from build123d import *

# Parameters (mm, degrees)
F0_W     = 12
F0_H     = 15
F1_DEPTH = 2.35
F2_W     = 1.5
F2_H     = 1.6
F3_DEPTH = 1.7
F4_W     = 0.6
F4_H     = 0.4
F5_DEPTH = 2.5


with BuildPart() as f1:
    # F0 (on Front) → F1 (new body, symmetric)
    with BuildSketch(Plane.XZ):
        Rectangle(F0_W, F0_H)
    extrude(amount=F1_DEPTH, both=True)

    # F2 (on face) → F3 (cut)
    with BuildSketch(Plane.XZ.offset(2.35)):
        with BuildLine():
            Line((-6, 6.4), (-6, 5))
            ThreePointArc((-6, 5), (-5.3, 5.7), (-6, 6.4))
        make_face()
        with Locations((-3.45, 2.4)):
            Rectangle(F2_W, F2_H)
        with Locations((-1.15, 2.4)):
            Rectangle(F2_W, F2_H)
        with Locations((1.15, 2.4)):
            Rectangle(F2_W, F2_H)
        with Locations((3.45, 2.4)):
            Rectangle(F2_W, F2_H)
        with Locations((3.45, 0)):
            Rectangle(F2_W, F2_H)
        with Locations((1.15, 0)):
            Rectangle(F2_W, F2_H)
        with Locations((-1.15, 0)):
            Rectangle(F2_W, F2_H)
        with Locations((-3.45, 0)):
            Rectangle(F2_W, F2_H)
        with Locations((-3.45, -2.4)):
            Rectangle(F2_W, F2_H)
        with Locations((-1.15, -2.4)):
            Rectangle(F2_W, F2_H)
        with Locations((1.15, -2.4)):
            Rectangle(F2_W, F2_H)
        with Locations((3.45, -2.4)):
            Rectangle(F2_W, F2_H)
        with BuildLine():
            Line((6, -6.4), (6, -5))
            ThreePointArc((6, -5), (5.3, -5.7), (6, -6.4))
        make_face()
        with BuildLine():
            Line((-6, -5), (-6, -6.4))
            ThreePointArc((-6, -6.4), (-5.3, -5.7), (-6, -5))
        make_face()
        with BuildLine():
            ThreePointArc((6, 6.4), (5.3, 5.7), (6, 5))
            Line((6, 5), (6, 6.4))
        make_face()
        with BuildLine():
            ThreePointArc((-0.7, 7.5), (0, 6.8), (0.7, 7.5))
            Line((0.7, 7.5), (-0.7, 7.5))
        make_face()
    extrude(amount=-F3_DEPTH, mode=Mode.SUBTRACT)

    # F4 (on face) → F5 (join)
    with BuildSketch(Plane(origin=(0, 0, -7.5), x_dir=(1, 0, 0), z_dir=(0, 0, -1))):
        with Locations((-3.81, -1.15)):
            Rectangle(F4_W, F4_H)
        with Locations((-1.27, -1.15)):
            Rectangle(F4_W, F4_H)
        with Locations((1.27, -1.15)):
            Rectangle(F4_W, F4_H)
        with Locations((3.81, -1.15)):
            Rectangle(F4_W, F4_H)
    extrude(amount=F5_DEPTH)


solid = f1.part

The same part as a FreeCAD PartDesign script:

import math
import FreeCAD as App
import Part
import Sketcher
from FreeCAD import Vector

doc = App.newDocument("Part")
body = doc.addObject("PartDesign::Body", "Body")

sketch1 = body.newObject("Sketcher::SketchObject", "Sketch")
sketch1.AttachmentSupport = (doc.getObject("XZ_Plane"), [""])
sketch1.MapMode = "FlatFace"
sketch1.addGeometry([
    Part.LineSegment(Vector(-6, 8, 0), Vector(-6, -8, 0)),
    Part.LineSegment(Vector(-6, -8, 0), Vector(6, -8, 0)),
    Part.LineSegment(Vector(6, -8, 0), Vector(6, 8, 0)),
    Part.LineSegment(Vector(6, 8, 0), Vector(-6, 8, 0)),
], False)
sketch1.addConstraint([
    Sketcher.Constraint("Coincident", 0, 2, 1, 1),
    Sketcher.Constraint("Coincident", 1, 2, 2, 1),
    Sketcher.Constraint("Coincident", 2, 2, 3, 1),
    Sketcher.Constraint("Coincident", 3, 2, 0, 1),
    Sketcher.Constraint("Vertical", 0),
    Sketcher.Constraint("Horizontal", 1),
    Sketcher.Constraint("Vertical", 2),
    Sketcher.Constraint("Horizontal", 3),
    Sketcher.Constraint("Symmetric", 0, 2, 2, 2, -1, 1),
    Sketcher.Constraint("DistanceX", 1, 1, 1, 2, 12.0),
    Sketcher.Constraint("DistanceY", 0, 2, 0, 1, 15.0),
])
pad1 = body.newObject("PartDesign::Pad", "Pad")
pad1.Profile = sketch1
pad1.Length = 4.7
pad1.Midplane = True

sketch2 = body.newObject("Sketcher::SketchObject", "Sketch001")
sketch2.AttachmentSupport = (doc.getObject("XZ_Plane"), [""])
sketch2.MapMode = "FlatFace"
sketch2.AttachmentOffset = App.Placement(Vector(0, 0, 2.35), App.Rotation())
sketch2.addGeometry([
    Part.LineSegment(Vector(-6, 6.4, 0), Vector(-6, 5, 0)),
    Part.ArcOfCircle(Part.Circle(Vector(-6, 5.7, 0), Vector(0, 0, 1), 0.7), math.radians(-90), math.radians(90)),
    Part.LineSegment(Vector(-4.2, 3.2, 0), Vector(-4.2, 1.6, 0)),
    Part.LineSegment(Vector(-4.2, 1.6, 0), Vector(-2.7, 1.6, 0)),
    Part.LineSegment(Vector(-2.7, 1.6, 0), Vector(-2.7, 3.2, 0)),
    Part.LineSegment(Vector(-2.7, 3.2, 0), Vector(-4.2, 3.2, 0)),
    Part.LineSegment(Vector(-1.9, 3.2, 0), Vector(-1.9, 1.6, 0)),
    Part.LineSegment(Vector(-1.9, 1.6, 0), Vector(-0.4, 1.6, 0)),
    Part.LineSegment(Vector(-0.4, 1.6, 0), Vector(-0.4, 3.2, 0)),
    Part.LineSegment(Vector(-0.4, 3.2, 0), Vector(-1.9, 3.2, 0)),
    Part.LineSegment(Vector(0.4, 3.2, 0), Vector(0.4, 1.6, 0)),
    Part.LineSegment(Vector(0.4, 1.6, 0), Vector(1.9, 1.6, 0)),
    Part.LineSegment(Vector(1.9, 1.6, 0), Vector(1.9, 3.2, 0)),
    Part.LineSegment(Vector(1.9, 3.2, 0), Vector(0.4, 3.2, 0)),
    Part.LineSegment(Vector(2.7, 3.2, 0), Vector(2.7, 1.6, 0)),
    Part.LineSegment(Vector(2.7, 1.6, 0), Vector(4.2, 1.6, 0)),
    Part.LineSegment(Vector(4.2, 1.6, 0), Vector(4.2, 3.2, 0)),
    Part.LineSegment(Vector(4.2, 3.2, 0), Vector(2.7, 3.2, 0)),
    Part.LineSegment(Vector(2.7, 0.8, 0), Vector(2.7, -0.8, 0)),
    Part.LineSegment(Vector(2.7, -0.8, 0), Vector(4.2, -0.8, 0)),
    Part.LineSegment(Vector(4.2, -0.8, 0), Vector(4.2, 0.8, 0)),
    Part.LineSegment(Vector(4.2, 0.8, 0), Vector(2.7, 0.8, 0)),
    Part.LineSegment(Vector(0.4, 0.8, 0), Vector(0.4, -0.8, 0)),
    Part.LineSegment(Vector(0.4, -0.8, 0), Vector(1.9, -0.8, 0)),
    Part.LineSegment(Vector(1.9, -0.8, 0), Vector(1.9, 0.8, 0)),
    Part.LineSegment(Vector(1.9, 0.8, 0), Vector(0.4, 0.8, 0)),
    Part.LineSegment(Vector(-1.9, 0.8, 0), Vector(-1.9, -0.8, 0)),
    Part.LineSegment(Vector(-1.9, -0.8, 0), Vector(-0.4, -0.8, 0)),
    Part.LineSegment(Vector(-0.4, -0.8, 0), Vector(-0.4, 0.8, 0)),
    Part.LineSegment(Vector(-0.4, 0.8, 0), Vector(-1.9, 0.8, 0)),
    Part.LineSegment(Vector(-4.2, 0.8, 0), Vector(-4.2, -0.8, 0)),
    Part.LineSegment(Vector(-4.2, -0.8, 0), Vector(-2.7, -0.8, 0)),
    Part.LineSegment(Vector(-2.7, -0.8, 0), Vector(-2.7, 0.8, 0)),
    Part.LineSegment(Vector(-2.7, 0.8, 0), Vector(-4.2, 0.8, 0)),
    Part.LineSegment(Vector(-4.2, -1.6, 0), Vector(-4.2, -3.2, 0)),
    Part.LineSegment(Vector(-4.2, -3.2, 0), Vector(-2.7, -3.2, 0)),
    Part.LineSegment(Vector(-2.7, -3.2, 0), Vector(-2.7, -1.6, 0)),
    Part.LineSegment(Vector(-2.7, -1.6, 0), Vector(-4.2, -1.6, 0)),
    Part.LineSegment(Vector(-1.9, -1.6, 0), Vector(-1.9, -3.2, 0)),
    Part.LineSegment(Vector(-1.9, -3.2, 0), Vector(-0.4, -3.2, 0)),
    Part.LineSegment(Vector(-0.4, -3.2, 0), Vector(-0.4, -1.6, 0)),
    Part.LineSegment(Vector(-0.4, -1.6, 0), Vector(-1.9, -1.6, 0)),
    Part.LineSegment(Vector(0.4, -1.6, 0), Vector(0.4, -3.2, 0)),
    Part.LineSegment(Vector(0.4, -3.2, 0), Vector(1.9, -3.2, 0)),
    Part.LineSegment(Vector(1.9, -3.2, 0), Vector(1.9, -1.6, 0)),
    Part.LineSegment(Vector(1.9, -1.6, 0), Vector(0.4, -1.6, 0)),
    Part.LineSegment(Vector(2.7, -1.6, 0), Vector(2.7, -3.2, 0)),
    Part.LineSegment(Vector(2.7, -3.2, 0), Vector(4.2, -3.2, 0)),
    Part.LineSegment(Vector(4.2, -3.2, 0), Vector(4.2, -1.6, 0)),
    Part.LineSegment(Vector(4.2, -1.6, 0), Vector(2.7, -1.6, 0)),
    Part.LineSegment(Vector(6, -6.4, 0), Vector(6, -5, 0)),
    Part.ArcOfCircle(Part.Circle(Vector(6, -5.7, 0), Vector(0, 0, 1), 0.7), math.radians(90), math.radians(270)),
    Part.LineSegment(Vector(-6, -5, 0), Vector(-6, -6.4, 0)),
    Part.ArcOfCircle(Part.Circle(Vector(-6, -5.7, 0), Vector(0, 0, 1), 0.7), math.radians(-90), math.radians(90)),
    Part.ArcOfCircle(Part.Circle(Vector(6, 5.7, 0), Vector(0, 0, 1), 0.7), math.radians(90), math.radians(270)),
    Part.LineSegment(Vector(6, 5, 0), Vector(6, 6.4, 0)),
    Part.ArcOfCircle(Part.Circle(Vector(0, 7.5, 0), Vector(0, 0, 1), 0.7), math.radians(180), math.radians(360)),
    Part.LineSegment(Vector(0.7, 7.5, 0), Vector(-0.7, 7.5, 0)),
], False)
sketch2.addConstraint([
    Sketcher.Constraint("Coincident", 0, 1, 1, 2),
    Sketcher.Constraint("Coincident", 1, 1, 0, 2),
    Sketcher.Constraint("Coincident", 2, 2, 3, 1),
    Sketcher.Constraint("Coincident", 3, 2, 4, 1),
    Sketcher.Constraint("Coincident", 4, 2, 5, 1),
    Sketcher.Constraint("Coincident", 5, 2, 2, 1),
    Sketcher.Constraint("Coincident", 6, 2, 7, 1),
    Sketcher.Constraint("Coincident", 7, 2, 8, 1),
    Sketcher.Constraint("Coincident", 8, 2, 9, 1),
    Sketcher.Constraint("Coincident", 9, 2, 6, 1),
    Sketcher.Constraint("Coincident", 10, 2, 11, 1),
    Sketcher.Constraint("Coincident", 11, 2, 12, 1),
    Sketcher.Constraint("Coincident", 12, 2, 13, 1),
    Sketcher.Constraint("Coincident", 13, 2, 10, 1),
    Sketcher.Constraint("Coincident", 14, 2, 15, 1),
    Sketcher.Constraint("Coincident", 15, 2, 16, 1),
    Sketcher.Constraint("Coincident", 16, 2, 17, 1),
    Sketcher.Constraint("Coincident", 17, 2, 14, 1),
    Sketcher.Constraint("Coincident", 18, 2, 19, 1),
    Sketcher.Constraint("Coincident", 19, 2, 20, 1),
    Sketcher.Constraint("Coincident", 20, 2, 21, 1),
    Sketcher.Constraint("Coincident", 21, 2, 18, 1),
    Sketcher.Constraint("Coincident", 22, 2, 23, 1),
    Sketcher.Constraint("Coincident", 23, 2, 24, 1),
    Sketcher.Constraint("Coincident", 24, 2, 25, 1),
    Sketcher.Constraint("Coincident", 25, 2, 22, 1),
    Sketcher.Constraint("Coincident", 26, 2, 27, 1),
    Sketcher.Constraint("Coincident", 27, 2, 28, 1),
    Sketcher.Constraint("Coincident", 28, 2, 29, 1),
    Sketcher.Constraint("Coincident", 29, 2, 26, 1),
    Sketcher.Constraint("Coincident", 30, 2, 31, 1),
    Sketcher.Constraint("Coincident", 31, 2, 32, 1),
    Sketcher.Constraint("Coincident", 32, 2, 33, 1),
    Sketcher.Constraint("Coincident", 33, 2, 30, 1),
    Sketcher.Constraint("Coincident", 34, 2, 35, 1),
    Sketcher.Constraint("Coincident", 35, 2, 36, 1),
    Sketcher.Constraint("Coincident", 36, 2, 37, 1),
    Sketcher.Constraint("Coincident", 37, 2, 34, 1),
    Sketcher.Constraint("Coincident", 38, 2, 39, 1),
    Sketcher.Constraint("Coincident", 39, 2, 40, 1),
    Sketcher.Constraint("Coincident", 40, 2, 41, 1),
    Sketcher.Constraint("Coincident", 41, 2, 38, 1),
    Sketcher.Constraint("Coincident", 42, 2, 43, 1),
    Sketcher.Constraint("Coincident", 43, 2, 44, 1),
    Sketcher.Constraint("Coincident", 44, 2, 45, 1),
    Sketcher.Constraint("Coincident", 45, 2, 42, 1),
    Sketcher.Constraint("Coincident", 46, 2, 47, 1),
    Sketcher.Constraint("Coincident", 47, 2, 48, 1),
    Sketcher.Constraint("Coincident", 48, 2, 49, 1),
    Sketcher.Constraint("Coincident", 49, 2, 46, 1),
    Sketcher.Constraint("Coincident", 50, 1, 51, 2),
    Sketcher.Constraint("Coincident", 51, 1, 50, 2),
    Sketcher.Constraint("Coincident", 52, 1, 53, 2),
    Sketcher.Constraint("Coincident", 53, 1, 52, 2),
    Sketcher.Constraint("Coincident", 54, 1, 55, 2),
    Sketcher.Constraint("Coincident", 55, 1, 54, 2),
    Sketcher.Constraint("Coincident", 56, 1, 57, 2),
    Sketcher.Constraint("Coincident", 57, 1, 56, 2),
    Sketcher.Constraint("Vertical", 0),
    Sketcher.Constraint("Vertical", 2),
    Sketcher.Constraint("Horizontal", 3),
    Sketcher.Constraint("Vertical", 4),
    Sketcher.Constraint("Horizontal", 5),
    Sketcher.Constraint("Vertical", 6),
    Sketcher.Constraint("Horizontal", 7),
    Sketcher.Constraint("Vertical", 8),
    Sketcher.Constraint("Horizontal", 9),
    Sketcher.Constraint("Vertical", 10),
    Sketcher.Constraint("Horizontal", 11),
    Sketcher.Constraint("Vertical", 12),
    Sketcher.Constraint("Horizontal", 13),
    Sketcher.Constraint("Vertical", 14),
    Sketcher.Constraint("Horizontal", 15),
    Sketcher.Constraint("Vertical", 16),
    Sketcher.Constraint("Horizontal", 17),
    Sketcher.Constraint("Vertical", 18),
    Sketcher.Constraint("Horizontal", 19),
    Sketcher.Constraint("Vertical", 20),
    Sketcher.Constraint("Horizontal", 21),
    Sketcher.Constraint("Vertical", 22),
    Sketcher.Constraint("Horizontal", 23),
    Sketcher.Constraint("Vertical", 24),
    Sketcher.Constraint("Horizontal", 25),
    Sketcher.Constraint("Vertical", 26),
    Sketcher.Constraint("Horizontal", 27),
    Sketcher.Constraint("Vertical", 28),
    Sketcher.Constraint("Horizontal", 29),
    Sketcher.Constraint("Vertical", 30),
    Sketcher.Constraint("Horizontal", 31),
    Sketcher.Constraint("Vertical", 32),
    Sketcher.Constraint("Horizontal", 33),
    Sketcher.Constraint("Vertical", 34),
    Sketcher.Constraint("Horizontal", 35),
    Sketcher.Constraint("Vertical", 36),
    Sketcher.Constraint("Horizontal", 37),
    Sketcher.Constraint("Vertical", 38),
    Sketcher.Constraint("Horizontal", 39),
    Sketcher.Constraint("Vertical", 40),
    Sketcher.Constraint("Horizontal", 41),
    Sketcher.Constraint("Vertical", 42),
    Sketcher.Constraint("Horizontal", 43),
    Sketcher.Constraint("Vertical", 44),
    Sketcher.Constraint("Horizontal", 45),
    Sketcher.Constraint("Vertical", 46),
    Sketcher.Constraint("Horizontal", 47),
    Sketcher.Constraint("Vertical", 48),
    Sketcher.Constraint("Horizontal", 49),
    Sketcher.Constraint("Vertical", 50),
    Sketcher.Constraint("Vertical", 52),
    Sketcher.Constraint("Vertical", 55),
    Sketcher.Constraint("Horizontal", 57),
    Sketcher.Constraint("Equal", 1, 51),
    Sketcher.Constraint("Equal", 51, 53),
    Sketcher.Constraint("Equal", 53, 54),
    Sketcher.Constraint("Equal", 54, 56),
    Sketcher.Constraint("Symmetric", 1, 3, 51, 3, -1, 1),
    Sketcher.Constraint("Symmetric", 53, 3, 54, 3, -1, 1),
    Sketcher.Constraint("Symmetric", 24, 2, 26, 2, -1, 1),
    Sketcher.Constraint("Symmetric", 22, 2, 28, 2, -1, 1),
    Sketcher.Constraint("Symmetric", 20, 2, 30, 2, -1, 1),
    Sketcher.Constraint("Symmetric", 18, 2, 32, 2, -1, 1),
    Sketcher.Constraint("Symmetric", 16, 2, 34, 2, -1, 1),
    Sketcher.Constraint("Symmetric", 14, 2, 36, 2, -1, 1),
    Sketcher.Constraint("Symmetric", 12, 2, 38, 2, -1, 1),
    Sketcher.Constraint("Symmetric", 10, 2, 40, 2, -1, 1),
    Sketcher.Constraint("Symmetric", 8, 2, 42, 2, -1, 1),
    Sketcher.Constraint("Symmetric", 6, 2, 44, 2, -1, 1),
    Sketcher.Constraint("Symmetric", 4, 2, 46, 2, -1, 1),
    Sketcher.Constraint("Symmetric", 2, 2, 48, 2, -1, 1),
    Sketcher.Constraint("Symmetric", 51, 3, 53, 3, -2),
    Sketcher.Constraint("Symmetric", 7, 2, 10, 2, -2),
    Sketcher.Constraint("Symmetric", 9, 2, 12, 2, -2),
    Sketcher.Constraint("Symmetric", 3, 2, 14, 2, -2),
    Sketcher.Constraint("Symmetric", 5, 2, 16, 2, -2),
    Sketcher.Constraint("PointOnObject", 56, 3, -2),
    Sketcher.Constraint("Horizontal", 3, 2, 6, 2),
    Sketcher.Constraint("Horizontal", 5, 2, 8, 2),
    Sketcher.Constraint("Horizontal", 19, 2, 22, 2),
    Sketcher.Constraint("Horizontal", 21, 2, 24, 2),
    Sketcher.Constraint("Horizontal", 23, 2, 26, 2),
    Sketcher.Constraint("Vertical", 53, 3, 0, 1),
    Sketcher.Constraint("Vertical", 17, 2, 18, 2),
    Sketcher.Constraint("Vertical", 16, 2, 19, 2),
    Sketcher.Constraint("Vertical", 13, 2, 22, 2),
    Sketcher.Constraint("Vertical", 12, 2, 23, 2),
    Sketcher.Constraint("Vertical", 54, 3, 50, 1),
    Sketcher.Constraint("Vertical", 1, 1, 52, 1),
    Sketcher.Constraint("Vertical", 51, 1, 54, 1),
    Sketcher.Constraint("Equal", 5, 7),
    Sketcher.Constraint("Equal", 16, 18),
    Sketcher.Constraint("Radius", 1, 0.7),
    Sketcher.Constraint("DistanceX", 3, 1, 3, 2, 1.5),
    Sketcher.Constraint("DistanceY", 2, 2, 2, 1, 1.6),
    Sketcher.Constraint("DistanceX", 1, 3, -1, 1, 6.0),
    Sketcher.Constraint("DistanceY", -1, 1, 1, 1, 5.0),
    Sketcher.Constraint("DistanceY", -1, 1, 56, 3, 7.5),
    Sketcher.Constraint("DistanceX", 2, 2, -1, 1, 4.2),
    Sketcher.Constraint("DistanceY", -1, 1, 2, 2, 1.6),
    Sketcher.Constraint("DistanceX", 6, 2, -1, 1, 1.9),
    Sketcher.Constraint("DistanceY", -1, 1, 56, 1, 7.5),
])
pocket1 = body.newObject("PartDesign::Pocket", "Pocket")
pocket1.Profile = sketch2
pocket1.Length = 1.7

sketch3 = body.newObject("Sketcher::SketchObject", "Sketch002")
sketch3.AttachmentSupport = (doc.getObject("XY_Plane"), [""])
sketch3.MapMode = "FlatFace"
sketch3.AttachmentOffset = App.Placement(Vector(0, 0, -7.5), App.Rotation())
sketch3.addGeometry([
    Part.LineSegment(Vector(-4.11, 0.95, 0), Vector(-4.11, 1.35, 0)),
    Part.LineSegment(Vector(-4.11, 1.35, 0), Vector(-3.51, 1.35, 0)),
    Part.LineSegment(Vector(-3.51, 1.35, 0), Vector(-3.51, 0.95, 0)),
    Part.LineSegment(Vector(-3.51, 0.95, 0), Vector(-4.11, 0.95, 0)),
    Part.LineSegment(Vector(-1.57, 0.95, 0), Vector(-1.57, 1.35, 0)),
    Part.LineSegment(Vector(-1.57, 1.35, 0), Vector(-0.97, 1.35, 0)),
    Part.LineSegment(Vector(-0.97, 1.35, 0), Vector(-0.97, 0.95, 0)),
    Part.LineSegment(Vector(-0.97, 0.95, 0), Vector(-1.57, 0.95, 0)),
    Part.LineSegment(Vector(0.97, 0.95, 0), Vector(0.97, 1.35, 0)),
    Part.LineSegment(Vector(0.97, 1.35, 0), Vector(1.57, 1.35, 0)),
    Part.LineSegment(Vector(1.57, 1.35, 0), Vector(1.57, 0.95, 0)),
    Part.LineSegment(Vector(1.57, 0.95, 0), Vector(0.97, 0.95, 0)),
    Part.LineSegment(Vector(3.51, 0.95, 0), Vector(3.51, 1.35, 0)),
    Part.LineSegment(Vector(3.51, 1.35, 0), Vector(4.11, 1.35, 0)),
    Part.LineSegment(Vector(4.11, 1.35, 0), Vector(4.11, 0.95, 0)),
    Part.LineSegment(Vector(4.11, 0.95, 0), Vector(3.51, 0.95, 0)),
], False)
sketch3.addConstraint([
    Sketcher.Constraint("Coincident", 0, 2, 1, 1),
    Sketcher.Constraint("Coincident", 1, 2, 2, 1),
    Sketcher.Constraint("Coincident", 2, 2, 3, 1),
    Sketcher.Constraint("Coincident", 3, 2, 0, 1),
    Sketcher.Constraint("Coincident", 4, 2, 5, 1),
    Sketcher.Constraint("Coincident", 5, 2, 6, 1),
    Sketcher.Constraint("Coincident", 6, 2, 7, 1),
    Sketcher.Constraint("Coincident", 7, 2, 4, 1),
    Sketcher.Constraint("Coincident", 8, 2, 9, 1),
    Sketcher.Constraint("Coincident", 9, 2, 10, 1),
    Sketcher.Constraint("Coincident", 10, 2, 11, 1),
    Sketcher.Constraint("Coincident", 11, 2, 8, 1),
    Sketcher.Constraint("Coincident", 12, 2, 13, 1),
    Sketcher.Constraint("Coincident", 13, 2, 14, 1),
    Sketcher.Constraint("Coincident", 14, 2, 15, 1),
    Sketcher.Constraint("Coincident", 15, 2, 12, 1),
    Sketcher.Constraint("Vertical", 0),
    Sketcher.Constraint("Horizontal", 1),
    Sketcher.Constraint("Vertical", 2),
    Sketcher.Constraint("Horizontal", 3),
    Sketcher.Constraint("Vertical", 4),
    Sketcher.Constraint("Horizontal", 5),
    Sketcher.Constraint("Vertical", 6),
    Sketcher.Constraint("Horizontal", 7),
    Sketcher.Constraint("Vertical", 8),
    Sketcher.Constraint("Horizontal", 9),
    Sketcher.Constraint("Vertical", 10),
    Sketcher.Constraint("Horizontal", 11),
    Sketcher.Constraint("Vertical", 12),
    Sketcher.Constraint("Horizontal", 13),
    Sketcher.Constraint("Vertical", 14),
    Sketcher.Constraint("Horizontal", 15),
    Sketcher.Constraint("Symmetric", 5, 2, 8, 2, -2),
    Sketcher.Constraint("Symmetric", 7, 2, 10, 2, -2),
    Sketcher.Constraint("Symmetric", 1, 2, 12, 2, -2),
    Sketcher.Constraint("Symmetric", 3, 2, 14, 2, -2),
    Sketcher.Constraint("Horizontal", 1, 2, 4, 2),
    Sketcher.Constraint("Horizontal", 3, 2, 6, 2),
    Sketcher.Constraint("Equal", 3, 5),
    Sketcher.Constraint("DistanceX", 1, 1, 1, 2, 0.6),
    Sketcher.Constraint("DistanceY", 0, 1, 0, 2, 0.4),
    Sketcher.Constraint("DistanceX", 0, 2, -1, 1, 4.11),
    Sketcher.Constraint("DistanceY", -1, 1, 0, 2, 1.35),
    Sketcher.Constraint("DistanceX", 4, 2, -1, 1, 1.57),
])
pad2 = body.newObject("PartDesign::Pad", "Pad001")
pad2.Profile = sketch3
pad2.Length = 2.5
pad2.Reversed = True

doc.recompute()
